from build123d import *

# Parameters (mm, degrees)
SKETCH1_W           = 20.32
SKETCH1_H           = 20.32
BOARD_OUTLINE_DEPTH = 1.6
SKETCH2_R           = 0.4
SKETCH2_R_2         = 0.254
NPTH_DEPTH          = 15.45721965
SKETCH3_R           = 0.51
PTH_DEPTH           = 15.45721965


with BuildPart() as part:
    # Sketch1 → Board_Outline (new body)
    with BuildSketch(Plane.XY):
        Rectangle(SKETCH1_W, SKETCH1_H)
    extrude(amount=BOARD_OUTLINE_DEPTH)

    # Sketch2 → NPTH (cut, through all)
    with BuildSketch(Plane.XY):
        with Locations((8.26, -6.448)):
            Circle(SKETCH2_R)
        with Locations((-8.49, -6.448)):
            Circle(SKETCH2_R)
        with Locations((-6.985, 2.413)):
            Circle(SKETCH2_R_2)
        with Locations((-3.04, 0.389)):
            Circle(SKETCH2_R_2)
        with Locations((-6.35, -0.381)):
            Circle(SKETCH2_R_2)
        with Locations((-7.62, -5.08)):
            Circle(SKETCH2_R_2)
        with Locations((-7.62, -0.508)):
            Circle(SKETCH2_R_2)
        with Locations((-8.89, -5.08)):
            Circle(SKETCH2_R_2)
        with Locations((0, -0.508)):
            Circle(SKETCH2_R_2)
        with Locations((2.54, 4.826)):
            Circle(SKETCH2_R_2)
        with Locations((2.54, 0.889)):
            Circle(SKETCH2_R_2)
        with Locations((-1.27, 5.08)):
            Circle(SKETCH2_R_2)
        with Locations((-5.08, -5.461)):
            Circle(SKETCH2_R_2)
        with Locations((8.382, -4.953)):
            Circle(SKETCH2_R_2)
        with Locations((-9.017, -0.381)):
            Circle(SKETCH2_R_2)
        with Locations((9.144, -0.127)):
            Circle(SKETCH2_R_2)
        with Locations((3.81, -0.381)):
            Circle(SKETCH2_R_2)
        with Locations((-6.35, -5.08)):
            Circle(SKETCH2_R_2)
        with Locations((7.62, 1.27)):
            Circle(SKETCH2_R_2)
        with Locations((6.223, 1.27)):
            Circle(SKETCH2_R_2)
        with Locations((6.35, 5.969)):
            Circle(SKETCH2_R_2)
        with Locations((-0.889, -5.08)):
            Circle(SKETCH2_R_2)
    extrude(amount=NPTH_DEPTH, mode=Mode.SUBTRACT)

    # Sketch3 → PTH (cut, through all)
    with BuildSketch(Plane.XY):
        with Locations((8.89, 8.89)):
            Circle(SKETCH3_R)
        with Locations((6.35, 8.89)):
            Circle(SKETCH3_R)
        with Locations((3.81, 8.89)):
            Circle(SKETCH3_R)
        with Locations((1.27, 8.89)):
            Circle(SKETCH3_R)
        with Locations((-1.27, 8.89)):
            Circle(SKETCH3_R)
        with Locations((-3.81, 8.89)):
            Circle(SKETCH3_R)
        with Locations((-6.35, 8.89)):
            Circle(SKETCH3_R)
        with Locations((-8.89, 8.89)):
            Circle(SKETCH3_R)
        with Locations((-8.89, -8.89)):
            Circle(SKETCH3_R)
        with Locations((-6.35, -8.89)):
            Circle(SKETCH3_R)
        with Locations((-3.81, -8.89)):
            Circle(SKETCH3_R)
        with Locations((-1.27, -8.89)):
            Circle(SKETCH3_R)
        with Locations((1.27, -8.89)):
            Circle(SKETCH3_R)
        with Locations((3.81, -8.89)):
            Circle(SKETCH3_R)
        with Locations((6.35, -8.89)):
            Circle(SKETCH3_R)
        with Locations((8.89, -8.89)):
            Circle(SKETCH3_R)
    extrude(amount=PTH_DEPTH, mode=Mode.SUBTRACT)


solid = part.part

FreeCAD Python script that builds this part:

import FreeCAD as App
import Part
import Sketcher


def add_polygon(sketch, points):
    """Adds a closed chain of lines whose ends are joined by coincident constraints."""
    first, n = sketch.GeometryCount, len(points)
    for a, b in zip(points, points[1:] + points[:1]):
        sketch.addGeometry(Part.LineSegment(App.Vector(*a, 0), App.Vector(*b, 0)), False)
    for i in range(n):
        sketch.addConstraint(Sketcher.Constraint("Coincident", first + i, 2, first + (i + 1) % n, 1))

doc = App.newDocument("Part")
body = doc.addObject("PartDesign::Body", "Body")

sketch1 = body.newObject("Sketcher::SketchObject", "Sketch")
sketch1.AttachmentSupport = (doc.getObject("XY_Plane"), [""])
sketch1.MapMode = "FlatFace"
add_polygon(sketch1, [(-10, 10), (-10, -10), (10, -10), (10, 10)])
sketch1.addConstraint(Sketcher.Constraint("Vertical", 0))
sketch1.addConstraint(Sketcher.Constraint("Horizontal", 1))
sketch1.addConstraint(Sketcher.Constraint("Vertical", 2))
sketch1.addConstraint(Sketcher.Constraint("Horizontal", 3))
sketch1.addConstraint(Sketcher.Constraint("Symmetric", 0, 2, 2, 2, -1, 1))
sketch1.addConstraint(Sketcher.Constraint("Equal", 3, 0))
sketch1.addConstraint(Sketcher.Constraint("DistanceX", 1, 1, 1, 2, 20.32))
pad1 = body.newObject("PartDesign::Pad", "Pad")
pad1.Profile = sketch1
pad1.Length = 1.6

sketch2 = body.newObject("Sketcher::SketchObject", "Sketch001")
sketch2.AttachmentSupport = (doc.getObject("XY_Plane"), [""])
sketch2.MapMode = "FlatFace"
sketch2.addGeometry(Part.Circle(App.Vector(8.26, -6.45, 0), App.Vector(0, 0, 1), 0.4), False)
sketch2.addGeometry(Part.Circle(App.Vector(-8.49, -6.45, 0), App.Vector(0, 0, 1), 0.4), False)
sketch2.addGeometry(Part.Circle(App.Vector(-6.99, 2.41, 0), App.Vector(0, 0, 1), 0.25), False)
sketch2.addGeometry(Part.Circle(App.Vector(-3.04, 0.39, 0), App.Vector(0, 0, 1), 0.25), False)
sketch2.addGeometry(Part.Circle(App.Vector(-6.35, -0.38, 0), App.Vector(0, 0, 1), 0.25), False)
sketch2.addGeometry(Part.Circle(App.Vector(-7.62, -5.08, 0), App.Vector(0, 0, 1), 0.25), False)
sketch2.addGeometry(Part.Circle(App.Vector(-7.62, -0.51, 0), App.Vector(0, 0, 1), 0.25), False)
sketch2.addGeometry(Part.Circle(App.Vector(-8.89, -5.08, 0), App.Vector(0, 0, 1), 0.25), False)
sketch2.addGeometry(Part.Circle(App.Vector(0, -0.51, 0), App.Vector(0, 0, 1), 0.25), False)
sketch2.addGeometry(Part.Circle(App.Vector(2.54, 4.83, 0), App.Vector(0, 0, 1), 0.25), False)
sketch2.addGeometry(Part.Circle(App.Vector(2.54, 0.89, 0), App.Vector(0, 0, 1), 0.25), False)
sketch2.addGeometry(Part.Circle(App.Vector(-1.27, 5.08, 0), App.Vector(0, 0, 1), 0.25), False)
sketch2.addGeometry(Part.Circle(App.Vector(-5.08, -5.46, 0), App.Vector(0, 0, 1), 0.25), False)
sketch2.addGeometry(Part.Circle(App.Vector(8.38, -4.95, 0), App.Vector(0, 0, 1), 0.25), False)
sketch2.addGeometry(Part.Circle(App.Vector(-9.02, -0.38, 0), App.Vector(0, 0, 1), 0.25), False)
sketch2.addGeometry(Part.Circle(App.Vector(9.14, -0.13, 0), App.Vector(0, 0, 1), 0.25), False)
sketch2.addGeometry(Part.Circle(App.Vector(3.81, -0.38, 0), App.Vector(0, 0, 1), 0.25), False)
sketch2.addGeometry(Part.Circle(App.Vector(-6.35, -5.08, 0), App.Vector(0, 0, 1), 0.25), False)
sketch2.addGeometry(Part.Circle(App.Vector(7.62, 1.27, 0), App.Vector(0, 0, 1), 0.25), False)
sketch2.addGeometry(Part.Circle(App.Vector(6.22, 1.27, 0), App.Vector(0, 0, 1), 0.25), False)
sketch2.addGeometry(Part.Circle(App.Vector(6.35, 5.97, 0), App.Vector(0, 0, 1), 0.25), False)
sketch2.addGeometry(Part.Circle(App.Vector(-0.89, -5.08, 0), App.Vector(0, 0, 1), 0.25), False)
sketch2.addConstraint(Sketcher.Constraint("Equal", 0, 1))
sketch2.addConstraint(Sketcher.Constraint("Equal", 2, 3))
sketch2.addConstraint(Sketcher.Constraint("Equal", 3, 4))
sketch2.addConstraint(Sketcher.Constraint("Equal", 4, 5))
sketch2.addConstraint(Sketcher.Constraint("Equal", 5, 6))
sketch2.addConstraint(Sketcher.Constraint("Equal", 6, 7))
sketch2.addConstraint(Sketcher.Constraint("Equal", 7, 8))
sketch2.addConstraint(Sketcher.Constraint("Equal", 8, 9))
sketch2.addConstraint(Sketcher.Constraint("Equal", 9, 10))
sketch2.addConstraint(Sketcher.Constraint("Equal", 10, 11))
sketch2.addConstraint(Sketcher.Constraint("Equal", 11, 12))
sketch2.addConstraint(Sketcher.Constraint("Equal", 12, 13))
sketch2.addConstraint(Sketcher.Constraint("Equal", 13, 14))
sketch2.addConstraint(Sketcher.Constraint("Equal", 14, 15))
sketch2.addConstraint(Sketcher.Constraint("Equal", 15, 16))
sketch2.addConstraint(Sketcher.Constraint("Equal", 16, 17))
sketch2.addConstraint(Sketcher.Constraint("Equal", 17, 18))
sketch2.addConstraint(Sketcher.Constraint("Equal", 18, 19))
sketch2.addConstraint(Sketcher.Constraint("Equal", 19, 20))
sketch2.addConstraint(Sketcher.Constraint("Equal", 20, 21))
sketch2.addConstraint(Sketcher.Constraint("PointOnObject", 8, 3, -2))
sketch2.addConstraint(Sketcher.Constraint("Horizontal", 0, 3, 1, 3))
sketch2.addConstraint(Sketcher.Constraint("Horizontal", 5, 3, 7, 3))
sketch2.addConstraint(Sketcher.Constraint("Horizontal", 6, 3, 8, 3))
sketch2.addConstraint(Sketcher.Constraint("Horizontal", 4, 3, 14, 3))
sketch2.addConstraint(Sketcher.Constraint("Horizontal", 14, 3, 16, 3))
sketch2.addConstraint(Sketcher.Constraint("Horizontal", 7, 3, 17, 3))
sketch2.addConstraint(Sketcher.Constraint("Horizontal", 18, 3, 19, 3))
sketch2.addConstraint(Sketcher.Constraint("Horizontal", 17, 3, 21, 3))
sketch2.addConstraint(Sketcher.Constraint("Vertical", 5, 3, 6, 3))
sketch2.addConstraint(Sketcher.Constraint("Vertical", 9, 3, 10, 3))
sketch2.addConstraint(Sketcher.Constraint("Vertical", 4, 3, 17, 3))
sketch2.addConstraint(Sketcher.Constraint("Diameter", 0, 0.8))
sketch2.addConstraint(Sketcher.Constraint("Diameter", 2, 0.508))
sketch2.addConstraint(Sketcher.Constraint("DistanceX", 3, 3, 0, 3, 11.3))
sketch2.addConstraint(Sketcher.Constraint("DistanceX", 7, 3, 1, 3, 0.4))
sketch2.addConstraint(Sketcher.Constraint("DistanceY", 3, 3, 10, 3, 0.5))
sketch2.addConstraint(Sketcher.Constraint("DistanceX", -1, 1, 0, 3, 8.26))
sketch2.addConstraint(Sketcher.Constraint("DistanceX", 1, 3, -1, 1, 8.49))
sketch2.addConstraint(Sketcher.Constraint("DistanceX", 4, 3, -1, 1, 6.35))
sketch2.addConstraint(Sketcher.Constraint("DistanceX", 5, 3, -1, 1, 7.62))
sketch2.addConstraint(Sketcher.Constraint("DistanceY", 5, 3, -1, 1, 5.08))
sketch2.addConstraint(Sketcher.Constraint("DistanceX", -1, 1, 9, 3, 2.54))
sketch2.addConstraint(Sketcher.Constraint("DistanceX", 11, 3, -1, 1, 1.27))
sketch2.addConstraint(Sketcher.Constraint("DistanceY", -1, 1, 11, 3, 5.08))
sketch2.addConstraint(Sketcher.Constraint("DistanceX", 12, 3, -1, 1, 5.08))
sketch2.addConstraint(Sketcher.Constraint("DistanceX", -1, 1, 16, 3, 3.81))
sketch2.addConstraint(Sketcher.Constraint("DistanceX", -1, 1, 18, 3, 7.62))
sketch2.addConstraint(Sketcher.Constraint("DistanceY", -1, 1, 18, 3, 1.27))
sketch2.addConstraint(Sketcher.Constraint("DistanceX", -1, 1, 20, 3, 6.35))
sketch2.addConstraint(Sketcher.Constraint("DistanceY", 4, 3, 3, 3, 0.77))
sketch2.addConstraint(Sketcher.Constraint("DistanceY", 1, 3, 6, 3, 5.94))
sketch2.addConstraint(Sketcher.Constraint("DistanceY", 12, 3, 4, 3, 5.08))
sketch2.addConstraint(Sketcher.Constraint("DistanceY", 10, 3, 20, 3, 5.08))
sketch2.addConstraint(Sketcher.Constraint("DistanceY", 0, 3, -1, 1, 6.448))
sketch2.addConstraint(Sketcher.Constraint("DistanceX", 2, 3, -1, 1, 6.985))
sketch2.addConstraint(Sketcher.Constraint("DistanceY", -1, 1, 2, 3, 2.413))
sketch2.addConstraint(Sketcher.Constraint("DistanceY", -1, 1, 3, 3, 0.389))
sketch2.addConstraint(Sketcher.Constraint("DistanceY", -1, 1, 9, 3, 4.826))
sketch2.addConstraint(Sketcher.Constraint("DistanceX", -1, 1, 13, 3, 8.382))
sketch2.addConstraint(Sketcher.Constraint("DistanceY", 13, 3, -1, 1, 4.953))
sketch2.addConstraint(Sketcher.Constraint("DistanceX", 14, 3, -1, 1, 9.017))
sketch2.addConstraint(Sketcher.Constraint("DistanceX", -1, 1, 15, 3, 9.144))
sketch2.addConstraint(Sketcher.Constraint("DistanceY", 15, 3, -1, 1, 0.127))
sketch2.addConstraint(Sketcher.Constraint("DistanceX", -1, 1, 19, 3, 6.223))
sketch2.addConstraint(Sketcher.Constraint("DistanceX", 21, 3, -1, 1, 0.889))
pocket1 = body.newObject("PartDesign::Pocket", "Pocket")
pocket1.Profile = sketch2
pocket1.Type = "ThroughAll"
pocket1.Reversed = True

sketch3 = body.newObject("Sketcher::SketchObject", "Sketch002")
sketch3.AttachmentSupport = (doc.getObject("XY_Plane"), [""])
sketch3.MapMode = "FlatFace"
sketch3.addGeometry(Part.Circle(App.Vector(8.9, 8.9, 0), App.Vector(0, 0, 1), 0.5), False)
sketch3.addGeometry(Part.Circle(App.Vector(6.3, 8.9, 0), App.Vector(0, 0, 1), 0.5), False)
sketch3.addGeometry(Part.Circle(App.Vector(3.8, 8.9, 0), App.Vector(0, 0, 1), 0.5), False)
sketch3.addGeometry(Part.Circle(App.Vector(1.3, 8.9, 0), App.Vector(0, 0, 1), 0.5), False)
sketch3.addGeometry(Part.Circle(App.Vector(-1.3, 8.9, 0), App.Vector(0, 0, 1), 0.5), False)
sketch3.addGeometry(Part.Circle(App.Vector(-3.8, 8.9, 0), App.Vector(0, 0, 1), 0.5), False)
sketch3.addGeometry(Part.Circle(App.Vector(-6.3, 8.9, 0), App.Vector(0, 0, 1), 0.5), False)
sketch3.addGeometry(Part.Circle(App.Vector(-8.9, 8.9, 0), App.Vector(0, 0, 1), 0.5), False)
sketch3.addGeometry(Part.Circle(App.Vector(-8.9, -8.9, 0), App.Vector(0, 0, 1), 0.5), False)
sketch3.addGeometry(Part.Circle(App.Vector(-6.3, -8.9, 0), App.Vector(0, 0, 1), 0.5), False)
sketch3.addGeometry(Part.Circle(App.Vector(-3.8, -8.9, 0), App.Vector(0, 0, 1), 0.5), False)
sketch3.addGeometry(Part.Circle(App.Vector(-1.3, -8.9, 0), App.Vector(0, 0, 1), 0.5), False)
sketch3.addGeometry(Part.Circle(App.Vector(1.3, -8.9, 0), App.Vector(0, 0, 1), 0.5), False)
sketch3.addGeometry(Part.Circle(App.Vector(3.8, -8.9, 0), App.Vector(0, 0, 1), 0.5), False)
sketch3.addGeometry(Part.Circle(App.Vector(6.3, -8.9, 0), App.Vector(0, 0, 1), 0.5), False)
sketch3.addGeometry(Part.Circle(App.Vector(8.9, -8.9, 0), App.Vector(0, 0, 1), 0.5), False)
sketch3.addConstraint(Sketcher.Constraint("Equal", 0, 1))
sketch3.addConstraint(Sketcher.Constraint("Equal", 1, 2))
sketch3.addConstraint(Sketcher.Constraint("Equal", 2, 3))
sketch3.addConstraint(Sketcher.Constraint("Equal", 3, 4))
sketch3.addConstraint(Sketcher.Constraint("Equal", 4, 5))
sketch3.addConstraint(Sketcher.Constraint("Equal", 5, 6))
sketch3.addConstraint(Sketcher.Constraint("Equal", 6, 7))
sketch3.addConstraint(Sketcher.Constraint("Equal", 7, 8))
sketch3.addConstraint(Sketcher.Constraint("Equal", 8, 9))
sketch3.addConstraint(Sketcher.Constraint("Equal", 9, 10))
sketch3.addConstraint(Sketcher.Constraint("Equal", 10, 11))
sketch3.addConstraint(Sketcher.Constraint("Equal", 11, 12))
sketch3.addConstraint(Sketcher.Constraint("Equal", 12, 13))
sketch3.addConstraint(Sketcher.Constraint("Equal", 13, 14))
sketch3.addConstraint(Sketcher.Constraint("Equal", 14, 15))
sketch3.addConstraint(Sketcher.Constraint("Symmetric", 0, 3, 8, 3, -1, 1))
sketch3.addConstraint(Sketcher.Constraint("Symmetric", 1, 3, 9, 3, -1, 1))
sketch3.addConstraint(Sketcher.Constraint("Symmetric", 2, 3, 10, 3, -1, 1))
sketch3.addConstraint(Sketcher.Constraint("Symmetric", 3, 3, 11, 3, -1, 1))
sketch3.addConstraint(Sketcher.Constraint("Symmetric", 4, 3, 12, 3, -1, 1))
sketch3.addConstraint(Sketcher.Constraint("Symmetric", 5, 3, 13, 3, -1, 1))
sketch3.addConstraint(Sketcher.Constraint("Symmetric", 6, 3, 14, 3, -1, 1))
sketch3.addConstraint(Sketcher.Constraint("Symmetric", 7, 3, 15, 3, -1, 1))
sketch3.addConstraint(Sketcher.Constraint("Symmetric", 3, 3, 4, 3, -2))
sketch3.addConstraint(Sketcher.Constraint("Symmetric", 2, 3, 5, 3, -2))
sketch3.addConstraint(Sketcher.Constraint("Symmetric", 1, 3, 6, 3, -2))
sketch3.addConstraint(Sketcher.Constraint("Symmetric", 0, 3, 7, 3, -2))
sketch3.addConstraint(Sketcher.Constraint("Horizontal", 0, 3, 1, 3))
sketch3.addConstraint(Sketcher.Constraint("Horizontal", 1, 3, 2, 3))
sketch3.addConstraint(Sketcher.Constraint("Horizontal", 2, 3, 3, 3))
sketch3.addConstraint(Sketcher.Constraint("Diameter", 0, 1.02))
sketch3.addConstraint(Sketcher.Constraint("DistanceX", 5, 3, 0, 3, 12.7))
sketch3.addConstraint(Sketcher.Constraint("DistanceX", 6, 3, 1, 3, 12.7))
sketch3.addConstraint(Sketcher.Constraint("DistanceX", -1, 1, 0, 3, 8.89))
sketch3.addConstraint(Sketcher.Constraint("DistanceY", -1, 1, 0, 3, 8.89))
sketch3.addConstraint(Sketcher.Constraint("DistanceX", -1, 1, 3, 3, 1.27))
pocket2 = body.newObject("PartDesign::Pocket", "Pocket001")
pocket2.Profile = sketch3
pocket2.Type = "ThroughAll"
pocket2.Reversed = True

doc.recompute()
